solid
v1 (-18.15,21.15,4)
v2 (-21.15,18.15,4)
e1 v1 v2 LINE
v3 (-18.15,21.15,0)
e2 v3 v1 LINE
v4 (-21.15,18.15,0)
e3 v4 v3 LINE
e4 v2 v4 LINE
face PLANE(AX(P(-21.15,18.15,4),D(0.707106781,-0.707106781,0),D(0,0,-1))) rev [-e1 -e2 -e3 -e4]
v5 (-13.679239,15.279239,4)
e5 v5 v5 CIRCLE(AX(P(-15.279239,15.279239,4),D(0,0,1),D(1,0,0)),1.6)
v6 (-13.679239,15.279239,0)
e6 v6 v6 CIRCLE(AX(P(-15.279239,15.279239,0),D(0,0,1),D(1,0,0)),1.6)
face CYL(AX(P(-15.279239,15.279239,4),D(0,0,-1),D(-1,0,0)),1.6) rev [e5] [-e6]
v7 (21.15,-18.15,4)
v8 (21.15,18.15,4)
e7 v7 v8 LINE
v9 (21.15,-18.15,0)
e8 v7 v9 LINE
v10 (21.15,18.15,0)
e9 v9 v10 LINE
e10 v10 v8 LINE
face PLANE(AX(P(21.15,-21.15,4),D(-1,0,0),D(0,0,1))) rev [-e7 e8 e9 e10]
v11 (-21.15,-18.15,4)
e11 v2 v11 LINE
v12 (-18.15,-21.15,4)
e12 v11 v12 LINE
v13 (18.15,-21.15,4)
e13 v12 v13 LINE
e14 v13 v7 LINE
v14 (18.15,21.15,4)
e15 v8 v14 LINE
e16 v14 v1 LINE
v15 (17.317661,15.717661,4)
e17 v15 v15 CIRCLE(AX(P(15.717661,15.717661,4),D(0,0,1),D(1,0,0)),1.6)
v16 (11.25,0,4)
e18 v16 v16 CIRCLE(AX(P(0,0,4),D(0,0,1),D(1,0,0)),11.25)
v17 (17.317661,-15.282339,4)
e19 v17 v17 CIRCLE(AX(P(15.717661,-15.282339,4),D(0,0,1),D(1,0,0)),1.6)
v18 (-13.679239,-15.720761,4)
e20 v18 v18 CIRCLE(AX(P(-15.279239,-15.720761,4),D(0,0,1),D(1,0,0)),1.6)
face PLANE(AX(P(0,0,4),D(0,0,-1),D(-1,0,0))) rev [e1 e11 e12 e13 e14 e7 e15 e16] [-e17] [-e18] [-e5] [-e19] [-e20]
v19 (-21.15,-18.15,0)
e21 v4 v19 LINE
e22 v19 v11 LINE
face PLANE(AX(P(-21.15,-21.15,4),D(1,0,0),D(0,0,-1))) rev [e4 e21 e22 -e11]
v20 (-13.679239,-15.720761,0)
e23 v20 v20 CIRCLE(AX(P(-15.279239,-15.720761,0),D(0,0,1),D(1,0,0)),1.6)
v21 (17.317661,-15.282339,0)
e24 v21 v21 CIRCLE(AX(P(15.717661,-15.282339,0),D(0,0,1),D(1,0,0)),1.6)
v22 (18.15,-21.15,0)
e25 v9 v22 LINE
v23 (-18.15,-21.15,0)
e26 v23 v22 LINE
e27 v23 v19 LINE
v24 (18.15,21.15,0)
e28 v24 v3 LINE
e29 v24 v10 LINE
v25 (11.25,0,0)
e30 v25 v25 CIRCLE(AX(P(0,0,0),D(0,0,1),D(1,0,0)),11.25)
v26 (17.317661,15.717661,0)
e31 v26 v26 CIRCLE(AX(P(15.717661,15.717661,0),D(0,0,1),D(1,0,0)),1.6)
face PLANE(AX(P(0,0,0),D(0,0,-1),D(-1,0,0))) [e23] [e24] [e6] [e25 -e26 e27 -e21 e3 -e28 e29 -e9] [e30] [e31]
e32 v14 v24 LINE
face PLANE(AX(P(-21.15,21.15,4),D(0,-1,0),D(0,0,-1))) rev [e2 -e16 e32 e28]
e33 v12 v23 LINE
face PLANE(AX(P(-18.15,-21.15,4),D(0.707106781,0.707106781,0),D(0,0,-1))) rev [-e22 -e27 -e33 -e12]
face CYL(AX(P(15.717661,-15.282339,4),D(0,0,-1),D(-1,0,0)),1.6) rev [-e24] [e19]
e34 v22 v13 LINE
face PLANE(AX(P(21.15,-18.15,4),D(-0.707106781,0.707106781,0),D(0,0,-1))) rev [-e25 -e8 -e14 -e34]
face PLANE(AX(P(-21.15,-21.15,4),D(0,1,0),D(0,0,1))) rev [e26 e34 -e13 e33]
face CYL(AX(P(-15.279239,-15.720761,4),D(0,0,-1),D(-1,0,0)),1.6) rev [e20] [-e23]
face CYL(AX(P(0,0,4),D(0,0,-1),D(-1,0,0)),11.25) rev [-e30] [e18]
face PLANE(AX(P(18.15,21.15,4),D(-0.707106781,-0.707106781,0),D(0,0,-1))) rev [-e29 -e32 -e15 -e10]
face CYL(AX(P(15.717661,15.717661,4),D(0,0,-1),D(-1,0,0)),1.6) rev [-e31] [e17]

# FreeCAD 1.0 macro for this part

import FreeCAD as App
import Part
import Sketcher
from FreeCAD import Vector


def edges_at(feature, points):
    """Names of the edges that pass closest to the given points."""
    edges = feature.Shape.Edges
    near = lambda p: min(range(len(edges)), key=lambda i: edges[i].distToShape(Part.Vertex(*p))[0])
    return sorted({f"Edge{near(p) + 1}" for p in points})


def add_polygon(sketch, points):
    """Adds a closed chain of lines whose ends are joined by coincident constraints."""
    first, n = sketch.GeometryCount, len(points)
    for a, b in zip(points, points[1:] + points[:1]):
        sketch.addGeometry(Part.LineSegment(App.Vector(*a, 0), App.Vector(*b, 0)), False)
    for i in range(n):
        sketch.addConstraint(Sketcher.Constraint("Coincident", first + i, 2, first + (i + 1) % n, 1))

doc = App.newDocument("Part")
params = doc.addObject("Spreadsheet::Sheet", "Params")
for row, (alias, value) in enumerate([
    ("sketch1_diameter", "3.2 mm"),
    ("sketch1_diameter2", "22.5 mm"),
    ("sketch1_width", "42.3 mm"),
    ("pad1_length", "4 mm"),
    ("chamfer_size", "3 mm"),
], start=1):
    params.set(f"A{row}", alias)
    params.set(f"B{row}", "=" + value)
    params.setAlias(f"B{row}", alias)

body = doc.addObject("PartDesign::Body", "Body")

# Sketch on XY plane
sketch1 = doc.addObject("Sketcher::SketchObject", "Sketch")
body.addObject(sketch1)
sketch1.AttachmentSupport = (doc.XY_Plane, [""])
sketch1.MapMode = "FlatFace"
add_polygon(sketch1, [(-21.15, 21.15), (-21.15, -21.15), (21.15, -21.15), (21.15, 21.15)])  # lines 0-3
sketch1.addGeometry(Part.Circle(Vector(-15.279239, -15.720761, 0), Vector(0, 0, 1), 1.6), False)  # 4
sketch1.addGeometry(Part.Circle(Vector(15.717661, -15.282339, 0), Vector(0, 0, 1), 1.6), False)  # 5
sketch1.addGeometry(Part.Circle(Vector(0, 0, 0), Vector(0, 0, 1), 11.25), False)  # 6
sketch1.addGeometry(Part.Circle(Vector(-15.279239, 15.279239, 0), Vector(0, 0, 1), 1.6), False)  # 7
sketch1.addGeometry(Part.Circle(Vector(15.717661, 15.717661, 0), Vector(0, 0, 1), 1.6), False)  # 8
sketch1.addConstraint([
    Sketcher.Constraint("Vertical", 0),
    Sketcher.Constraint("Horizontal", 1),
    Sketcher.Constraint("Vertical", 2),
    Sketcher.Constraint("Horizontal", 3),
    Sketcher.Constraint("Coincident", 6, 3, -1, 1),
    Sketcher.Constraint("Equal", 4, 5),
    Sketcher.Constraint("Equal", 5, 7),
    Sketcher.Constraint("Equal", 7, 8),
    Sketcher.Constraint("Symmetric", 0, 2, 2, 2, -1, 1),
    Sketcher.Constraint("Vertical", 4, 3, 7, 3),
    Sketcher.Constraint("Vertical", 5, 3, 8, 3),
    Sketcher.Constraint("Equal", 3, 0),
    Sketcher.Constraint("Diameter", 4, 3.2),
    Sketcher.Constraint("Diameter", 6, 22.5),
    Sketcher.Constraint("DistanceX", 1, 1, 1, 2, 42.3),
    Sketcher.Constraint("DistanceY", 4, 3, 7, 3, 31.0),
    Sketcher.Constraint("DistanceY", 5, 3, 8, 3, 31.0),
    Sketcher.Constraint("DistanceX", 4, 3, 5, 3, 30.9969),
    Sketcher.Constraint("DistanceX", 4, 3, -1, 1, 15.279239),
    Sketcher.Constraint("DistanceY", 4, 3, -1, 1, 15.720761),
    Sketcher.Constraint("DistanceY", 5, 3, -1, 1, 15.282339),
])
sketch1.setExpression("Constraints[16]", "Params.sketch1_diameter")
sketch1.setExpression("Constraints[17]", "Params.sketch1_diameter2")
sketch1.setExpression("Constraints[18]", "Params.sketch1_width")
pad1 = doc.addObject("PartDesign::Pad", "Pad")
body.addObject(pad1)
pad1.Profile = sketch1
pad1.setExpression("Length", "Params.pad1_length")
doc.recompute()

chamfer = doc.addObject("PartDesign::Chamfer", "Chamfer")
body.addObject(chamfer)
chamfer.Base = (pad1, edges_at(pad1, [
    (21.15, -21.15, 2),
    (-21.15, -21.15, 2),
    (-21.15, 21.15, 2),
    (21.15, 21.15, 2),
]))
chamfer.setExpression("Size", "Params.chamfer_size")

doc.recompute()
